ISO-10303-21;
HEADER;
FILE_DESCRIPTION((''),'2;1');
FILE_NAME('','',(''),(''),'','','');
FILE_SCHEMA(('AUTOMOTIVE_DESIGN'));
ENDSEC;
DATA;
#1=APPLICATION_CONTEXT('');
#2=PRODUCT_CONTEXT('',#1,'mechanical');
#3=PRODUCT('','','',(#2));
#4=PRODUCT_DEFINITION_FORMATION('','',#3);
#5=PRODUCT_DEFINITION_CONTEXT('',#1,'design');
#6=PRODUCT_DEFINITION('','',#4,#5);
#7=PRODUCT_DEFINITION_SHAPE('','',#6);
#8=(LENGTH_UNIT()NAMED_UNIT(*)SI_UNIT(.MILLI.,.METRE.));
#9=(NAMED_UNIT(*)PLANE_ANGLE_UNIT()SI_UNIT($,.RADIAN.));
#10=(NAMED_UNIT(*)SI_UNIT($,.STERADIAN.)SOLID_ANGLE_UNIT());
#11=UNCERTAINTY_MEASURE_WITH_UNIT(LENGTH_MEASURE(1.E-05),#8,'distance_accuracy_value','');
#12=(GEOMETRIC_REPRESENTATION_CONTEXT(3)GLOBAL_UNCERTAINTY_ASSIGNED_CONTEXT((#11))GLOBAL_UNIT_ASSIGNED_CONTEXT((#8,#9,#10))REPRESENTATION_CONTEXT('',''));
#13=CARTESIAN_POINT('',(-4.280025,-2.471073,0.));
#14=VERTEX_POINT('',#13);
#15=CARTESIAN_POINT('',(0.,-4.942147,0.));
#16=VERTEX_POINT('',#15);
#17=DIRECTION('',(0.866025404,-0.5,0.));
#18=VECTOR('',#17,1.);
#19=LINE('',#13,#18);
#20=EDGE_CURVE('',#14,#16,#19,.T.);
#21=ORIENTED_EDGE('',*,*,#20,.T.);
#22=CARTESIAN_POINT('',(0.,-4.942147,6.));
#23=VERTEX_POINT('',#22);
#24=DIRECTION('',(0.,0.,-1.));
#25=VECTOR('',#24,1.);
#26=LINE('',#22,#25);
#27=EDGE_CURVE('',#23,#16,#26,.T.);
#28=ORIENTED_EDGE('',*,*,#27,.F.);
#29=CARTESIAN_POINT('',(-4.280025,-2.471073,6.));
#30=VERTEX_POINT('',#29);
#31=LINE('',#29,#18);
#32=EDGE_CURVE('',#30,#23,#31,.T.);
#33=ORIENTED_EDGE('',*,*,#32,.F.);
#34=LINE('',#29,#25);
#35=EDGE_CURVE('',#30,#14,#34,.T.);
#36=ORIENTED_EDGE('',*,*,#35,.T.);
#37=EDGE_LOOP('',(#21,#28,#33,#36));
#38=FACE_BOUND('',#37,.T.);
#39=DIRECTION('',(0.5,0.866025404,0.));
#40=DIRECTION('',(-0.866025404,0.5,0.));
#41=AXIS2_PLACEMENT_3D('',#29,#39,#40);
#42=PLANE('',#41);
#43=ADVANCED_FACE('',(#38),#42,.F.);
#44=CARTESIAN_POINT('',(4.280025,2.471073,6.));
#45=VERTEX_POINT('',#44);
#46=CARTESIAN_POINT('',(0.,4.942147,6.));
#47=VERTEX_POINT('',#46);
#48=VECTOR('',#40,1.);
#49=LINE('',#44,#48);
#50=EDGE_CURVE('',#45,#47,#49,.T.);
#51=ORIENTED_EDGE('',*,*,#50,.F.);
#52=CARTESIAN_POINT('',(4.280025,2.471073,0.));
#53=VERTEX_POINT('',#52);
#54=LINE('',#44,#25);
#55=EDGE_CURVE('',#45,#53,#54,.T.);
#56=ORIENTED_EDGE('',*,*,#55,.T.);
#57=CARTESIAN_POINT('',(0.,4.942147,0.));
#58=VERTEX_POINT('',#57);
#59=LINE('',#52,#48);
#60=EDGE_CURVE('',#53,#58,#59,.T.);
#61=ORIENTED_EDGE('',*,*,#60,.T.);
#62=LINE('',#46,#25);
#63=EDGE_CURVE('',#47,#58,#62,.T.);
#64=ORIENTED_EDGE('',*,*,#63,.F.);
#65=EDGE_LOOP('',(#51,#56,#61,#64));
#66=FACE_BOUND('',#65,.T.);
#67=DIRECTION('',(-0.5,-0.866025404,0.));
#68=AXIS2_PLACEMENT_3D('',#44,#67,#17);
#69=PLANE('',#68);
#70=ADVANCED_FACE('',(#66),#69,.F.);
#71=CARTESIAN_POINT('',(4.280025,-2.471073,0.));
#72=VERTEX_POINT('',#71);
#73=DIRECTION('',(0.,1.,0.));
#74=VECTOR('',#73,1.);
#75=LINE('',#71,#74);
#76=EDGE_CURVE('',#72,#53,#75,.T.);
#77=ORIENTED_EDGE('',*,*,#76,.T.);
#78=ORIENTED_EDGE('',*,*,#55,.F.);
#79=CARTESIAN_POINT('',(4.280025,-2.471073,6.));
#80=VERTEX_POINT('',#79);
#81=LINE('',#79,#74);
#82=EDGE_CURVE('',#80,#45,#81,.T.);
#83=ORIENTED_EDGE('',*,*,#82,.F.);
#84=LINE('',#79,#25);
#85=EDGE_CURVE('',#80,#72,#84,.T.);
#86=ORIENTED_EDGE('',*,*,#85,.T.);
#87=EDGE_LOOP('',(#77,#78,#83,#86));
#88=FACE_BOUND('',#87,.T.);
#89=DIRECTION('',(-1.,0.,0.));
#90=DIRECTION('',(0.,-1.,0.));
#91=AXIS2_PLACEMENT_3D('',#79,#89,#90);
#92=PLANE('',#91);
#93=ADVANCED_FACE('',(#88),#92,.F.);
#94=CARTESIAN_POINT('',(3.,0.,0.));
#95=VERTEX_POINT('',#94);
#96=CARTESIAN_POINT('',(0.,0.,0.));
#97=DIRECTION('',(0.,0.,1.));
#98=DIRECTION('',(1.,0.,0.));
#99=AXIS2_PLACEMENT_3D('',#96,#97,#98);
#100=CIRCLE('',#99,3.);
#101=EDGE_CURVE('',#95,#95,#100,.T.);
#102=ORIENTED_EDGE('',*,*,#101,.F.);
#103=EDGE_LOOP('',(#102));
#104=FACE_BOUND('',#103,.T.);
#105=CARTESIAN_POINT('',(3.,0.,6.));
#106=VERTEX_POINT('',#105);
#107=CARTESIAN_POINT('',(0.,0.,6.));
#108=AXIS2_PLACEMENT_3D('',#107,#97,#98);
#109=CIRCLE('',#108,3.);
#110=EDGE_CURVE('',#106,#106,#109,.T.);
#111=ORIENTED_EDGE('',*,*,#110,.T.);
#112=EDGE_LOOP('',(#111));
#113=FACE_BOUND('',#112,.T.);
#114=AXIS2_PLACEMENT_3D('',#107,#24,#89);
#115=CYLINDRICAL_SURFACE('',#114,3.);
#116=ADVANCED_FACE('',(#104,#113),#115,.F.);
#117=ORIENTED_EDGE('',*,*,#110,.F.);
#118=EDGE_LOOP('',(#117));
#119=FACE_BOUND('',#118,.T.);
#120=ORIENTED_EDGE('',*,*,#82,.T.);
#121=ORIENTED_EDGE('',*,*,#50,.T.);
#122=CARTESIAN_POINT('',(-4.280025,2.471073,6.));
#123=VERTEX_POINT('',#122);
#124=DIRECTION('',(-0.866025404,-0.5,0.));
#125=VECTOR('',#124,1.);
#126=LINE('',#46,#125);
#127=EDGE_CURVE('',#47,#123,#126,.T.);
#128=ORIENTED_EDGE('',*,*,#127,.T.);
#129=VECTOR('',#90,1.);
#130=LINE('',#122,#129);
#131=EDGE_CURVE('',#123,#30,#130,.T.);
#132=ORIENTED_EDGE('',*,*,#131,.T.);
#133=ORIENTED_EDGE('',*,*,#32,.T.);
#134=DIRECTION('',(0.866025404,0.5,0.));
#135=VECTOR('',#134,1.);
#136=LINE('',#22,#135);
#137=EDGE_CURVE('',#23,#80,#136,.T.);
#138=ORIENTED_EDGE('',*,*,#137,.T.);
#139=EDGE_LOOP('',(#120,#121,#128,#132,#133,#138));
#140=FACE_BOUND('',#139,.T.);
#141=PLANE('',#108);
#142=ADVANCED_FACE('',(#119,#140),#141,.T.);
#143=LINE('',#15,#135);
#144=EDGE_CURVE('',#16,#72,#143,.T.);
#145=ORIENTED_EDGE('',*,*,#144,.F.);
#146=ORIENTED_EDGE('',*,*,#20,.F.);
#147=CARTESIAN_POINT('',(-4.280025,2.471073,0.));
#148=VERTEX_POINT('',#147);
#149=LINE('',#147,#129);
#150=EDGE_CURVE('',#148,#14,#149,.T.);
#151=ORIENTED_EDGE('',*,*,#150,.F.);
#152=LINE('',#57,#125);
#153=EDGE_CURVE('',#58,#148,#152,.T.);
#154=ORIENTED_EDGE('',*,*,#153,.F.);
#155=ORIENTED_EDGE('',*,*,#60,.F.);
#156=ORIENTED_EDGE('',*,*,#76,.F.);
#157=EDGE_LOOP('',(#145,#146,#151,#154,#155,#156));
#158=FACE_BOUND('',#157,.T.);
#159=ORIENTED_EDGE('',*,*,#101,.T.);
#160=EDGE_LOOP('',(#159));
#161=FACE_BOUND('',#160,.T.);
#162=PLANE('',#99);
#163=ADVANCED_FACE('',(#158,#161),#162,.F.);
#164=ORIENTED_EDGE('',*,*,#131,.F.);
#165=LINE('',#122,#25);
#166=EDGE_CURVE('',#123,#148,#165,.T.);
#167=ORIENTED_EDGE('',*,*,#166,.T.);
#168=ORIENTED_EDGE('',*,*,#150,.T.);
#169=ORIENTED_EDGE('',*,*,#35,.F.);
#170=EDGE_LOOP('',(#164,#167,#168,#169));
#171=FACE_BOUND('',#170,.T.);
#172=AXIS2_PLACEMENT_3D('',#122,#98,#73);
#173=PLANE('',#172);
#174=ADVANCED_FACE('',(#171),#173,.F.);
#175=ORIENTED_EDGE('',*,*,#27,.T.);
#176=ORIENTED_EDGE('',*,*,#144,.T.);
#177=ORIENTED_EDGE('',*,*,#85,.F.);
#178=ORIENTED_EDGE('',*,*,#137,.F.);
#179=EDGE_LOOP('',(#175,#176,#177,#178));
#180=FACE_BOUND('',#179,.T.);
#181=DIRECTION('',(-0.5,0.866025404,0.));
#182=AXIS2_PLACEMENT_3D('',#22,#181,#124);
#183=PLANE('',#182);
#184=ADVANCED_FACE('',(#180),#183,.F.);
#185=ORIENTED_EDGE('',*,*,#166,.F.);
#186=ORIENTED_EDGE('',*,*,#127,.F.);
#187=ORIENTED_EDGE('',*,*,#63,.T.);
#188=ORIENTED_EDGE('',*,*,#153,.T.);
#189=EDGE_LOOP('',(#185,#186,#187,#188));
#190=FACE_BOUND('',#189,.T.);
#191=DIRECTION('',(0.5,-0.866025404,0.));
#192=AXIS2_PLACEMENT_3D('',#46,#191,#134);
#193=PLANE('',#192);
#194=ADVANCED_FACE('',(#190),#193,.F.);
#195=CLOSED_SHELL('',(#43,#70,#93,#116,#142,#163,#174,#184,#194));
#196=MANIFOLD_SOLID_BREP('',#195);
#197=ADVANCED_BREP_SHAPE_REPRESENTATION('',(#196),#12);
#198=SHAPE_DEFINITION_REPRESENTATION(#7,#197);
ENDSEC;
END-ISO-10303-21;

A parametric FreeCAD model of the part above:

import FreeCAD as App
import Part
import Sketcher

V = App.Vector
Q = App.Units.Quantity

doc = App.newDocument("Part")
params = doc.addObject("Spreadsheet::Sheet", "Params")
for row, (alias, value) in enumerate([
    ("sketch1_diameter", "6 mm"),
    ("pad1_length", "6 mm"),
], start=1):
    params.set(f"A{row}", alias)
    params.set(f"B{row}", "=" + value)
    params.setAlias(f"B{row}", alias)

body = doc.addObject("PartDesign::Body", "Body")

# Sketch on XY plane
sketch1 = body.newObject("Sketcher::SketchObject", "Sketch")
sketch1.AttachmentSupport = (doc.getObject("XY_Plane"), [""])
sketch1.MapMode = "FlatFace"
sketch1.addGeometry(Part.LineSegment(V(0, -4.942147, 0), V(4.280025, -2.471073, 0)), False)
sketch1.addGeometry(Part.LineSegment(V(4.280025, -2.471073, 0), V(4.280025, 2.471073, 0)), False)
sketch1.addGeometry(Part.LineSegment(V(4.280025, 2.471073, 0), V(0, 4.942147, 0)), False)
sketch1.addGeometry(Part.LineSegment(V(0, 4.942147, 0), V(-4.280025, 2.471073, 0)), False)
sketch1.addGeometry(Part.LineSegment(V(-4.280025, 2.471073, 0), V(-4.280025, -2.471073, 0)), False)
sketch1.addGeometry(Part.LineSegment(V(-4.280025, -2.471073, 0), V(0, -4.942147, 0)), False)
sketch1.addGeometry(Part.Circle(V(0, 0, 0), V(0, 0, 1), 3), False)
sketch1.addConstraint(Sketcher.Constraint("Coincident", 0, 2, 1, 1))
sketch1.addConstraint(Sketcher.Constraint("Coincident", 1, 2, 2, 1))
sketch1.addConstraint(Sketcher.Constraint("Coincident", 2, 2, 3, 1))
sketch1.addConstraint(Sketcher.Constraint("Coincident", 3, 2, 4, 1))
sketch1.addConstraint(Sketcher.Constraint("Coincident", 4, 2, 5, 1))
sketch1.addConstraint(Sketcher.Constraint("Coincident", 5, 2, 0, 1))
sketch1.addConstraint(Sketcher.Constraint("Vertical", 1))
sketch1.addConstraint(Sketcher.Constraint("Vertical", 4))
sketch1.addConstraint(Sketcher.Constraint("Coincident", 6, 3, -1, 1))
sketch1.addConstraint(Sketcher.Constraint("Symmetric", 0, 2, 3, 2, -1, 1))
sketch1.addConstraint(Sketcher.Constraint("Symmetric", 2, 2, 5, 2, -1, 1))
sketch1.addConstraint(Sketcher.Constraint("PointOnObject", 2, 2, -2))
sketch1.addConstraint(Sketcher.Constraint("Parallel", 2, 5))
sketch1.addConstraint(Sketcher.Constraint("Horizontal", 1, 2, 3, 2))
sketch1.addConstraint(Sketcher.Constraint("Diameter", 6, Q("6 mm")))
sketch1.addConstraint(Sketcher.Constraint("Angle", 0, Q("30 deg")))
sketch1.addConstraint(Sketcher.Constraint("DistanceY", 1, 1, 1, 2, Q("4.942147 mm")))
sketch1.addConstraint(Sketcher.Constraint("DistanceY", 0, 2, 2, 2, Q("7.41322 mm")))
sketch1.setExpression("Constraints[14]", "Params.sketch1_diameter")
pad1 = body.newObject("PartDesign::Pad", "Pad")
pad1.Profile = sketch1
pad1.setExpression("Length", "Params.pad1_length")

doc.recompute()
